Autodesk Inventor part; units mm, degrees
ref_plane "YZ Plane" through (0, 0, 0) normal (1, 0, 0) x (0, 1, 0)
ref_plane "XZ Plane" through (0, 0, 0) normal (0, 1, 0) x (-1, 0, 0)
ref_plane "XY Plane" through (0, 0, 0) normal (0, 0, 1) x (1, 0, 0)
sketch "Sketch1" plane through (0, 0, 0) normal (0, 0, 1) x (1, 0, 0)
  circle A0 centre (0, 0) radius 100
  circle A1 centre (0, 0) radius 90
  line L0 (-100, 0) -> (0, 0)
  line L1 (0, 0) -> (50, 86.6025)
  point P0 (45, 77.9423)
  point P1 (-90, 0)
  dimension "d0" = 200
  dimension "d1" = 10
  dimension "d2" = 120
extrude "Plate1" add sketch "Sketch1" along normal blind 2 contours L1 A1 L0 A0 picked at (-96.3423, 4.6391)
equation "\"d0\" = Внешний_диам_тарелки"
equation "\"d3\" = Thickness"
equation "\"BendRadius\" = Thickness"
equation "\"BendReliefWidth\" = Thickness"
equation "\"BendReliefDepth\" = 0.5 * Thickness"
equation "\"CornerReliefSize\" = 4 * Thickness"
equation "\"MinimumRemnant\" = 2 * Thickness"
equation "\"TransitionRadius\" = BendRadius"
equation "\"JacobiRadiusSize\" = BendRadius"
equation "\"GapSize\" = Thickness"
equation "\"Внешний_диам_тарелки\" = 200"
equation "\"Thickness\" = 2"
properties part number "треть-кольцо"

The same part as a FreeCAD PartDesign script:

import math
import FreeCAD as App
import Part
import Sketcher
from FreeCAD import Vector
Q = App.Units.Quantity

doc = App.newDocument("Part")
params = doc.addObject("Spreadsheet::Sheet", "Params")
for row, (alias, value) in enumerate([
    ("sketch1_radius", "100 mm"),
    ("sketch1_width", "10 mm"),
    ("pad1_length", "2 mm"),
], start=1):
    params.set(f"A{row}", alias)
    params.set(f"B{row}", "=" + value)
    params.setAlias(f"B{row}", alias)

body = doc.addObject("PartDesign::Body", "Body")

# Sketch on XY plane
sketch1 = body.newObject("Sketcher::SketchObject", "Sketch")
sketch1.AttachmentSupport = (doc.getObject("XY_Plane"), [""])
sketch1.MapMode = "FlatFace"
sketch1.addGeometry([
    Part.LineSegment(Vector(45.000016, 77.942277, 0), Vector(50, 86.6025, 0)),
    Part.ArcOfCircle(Part.Circle(Vector(0, 0, 0), Vector(0, 0, 1), 100), math.radians(59.999988), math.radians(180)),
    Part.LineSegment(Vector(-100, 0, 0), Vector(-90, 0, 0)),
    Part.ArcOfCircle(Part.Circle(Vector(0, 0, 0), Vector(0, 0, 1), 90), math.radians(59.999988), math.radians(180)),
], False)
sketch1.addConstraint([
    Sketcher.Constraint("Coincident", 0, 2, 1, 1),
    Sketcher.Constraint("Coincident", 1, 2, 2, 1),
    Sketcher.Constraint("Coincident", 2, 2, 3, 2),
    Sketcher.Constraint("Coincident", 3, 1, 0, 1),
    Sketcher.Constraint("Horizontal", 2),
    Sketcher.Constraint("Coincident", 1, 3, -1, 1),
    Sketcher.Constraint("Coincident", 3, 3, -1, 1),
    Sketcher.Constraint("PointOnObject", 1, 2, -1),
    Sketcher.Constraint("Radius", 1, Q("100 mm")),
    Sketcher.Constraint("DistanceX", 2, 1, 2, 2, Q("10 mm")),
    Sketcher.Constraint("Angle", 0, Q("60 deg")),
    Sketcher.Constraint("DistanceX", -1, 1, 0, 2, Q("50 mm")),
])
sketch1.setExpression("Constraints[8]", "Params.sketch1_radius")
sketch1.setExpression("Constraints[9]", "Params.sketch1_width")
pad1 = body.newObject("PartDesign::Pad", "Pad")
pad1.Profile = sketch1
pad1.setExpression("Length", "Params.pad1_length")

doc.recompute()
